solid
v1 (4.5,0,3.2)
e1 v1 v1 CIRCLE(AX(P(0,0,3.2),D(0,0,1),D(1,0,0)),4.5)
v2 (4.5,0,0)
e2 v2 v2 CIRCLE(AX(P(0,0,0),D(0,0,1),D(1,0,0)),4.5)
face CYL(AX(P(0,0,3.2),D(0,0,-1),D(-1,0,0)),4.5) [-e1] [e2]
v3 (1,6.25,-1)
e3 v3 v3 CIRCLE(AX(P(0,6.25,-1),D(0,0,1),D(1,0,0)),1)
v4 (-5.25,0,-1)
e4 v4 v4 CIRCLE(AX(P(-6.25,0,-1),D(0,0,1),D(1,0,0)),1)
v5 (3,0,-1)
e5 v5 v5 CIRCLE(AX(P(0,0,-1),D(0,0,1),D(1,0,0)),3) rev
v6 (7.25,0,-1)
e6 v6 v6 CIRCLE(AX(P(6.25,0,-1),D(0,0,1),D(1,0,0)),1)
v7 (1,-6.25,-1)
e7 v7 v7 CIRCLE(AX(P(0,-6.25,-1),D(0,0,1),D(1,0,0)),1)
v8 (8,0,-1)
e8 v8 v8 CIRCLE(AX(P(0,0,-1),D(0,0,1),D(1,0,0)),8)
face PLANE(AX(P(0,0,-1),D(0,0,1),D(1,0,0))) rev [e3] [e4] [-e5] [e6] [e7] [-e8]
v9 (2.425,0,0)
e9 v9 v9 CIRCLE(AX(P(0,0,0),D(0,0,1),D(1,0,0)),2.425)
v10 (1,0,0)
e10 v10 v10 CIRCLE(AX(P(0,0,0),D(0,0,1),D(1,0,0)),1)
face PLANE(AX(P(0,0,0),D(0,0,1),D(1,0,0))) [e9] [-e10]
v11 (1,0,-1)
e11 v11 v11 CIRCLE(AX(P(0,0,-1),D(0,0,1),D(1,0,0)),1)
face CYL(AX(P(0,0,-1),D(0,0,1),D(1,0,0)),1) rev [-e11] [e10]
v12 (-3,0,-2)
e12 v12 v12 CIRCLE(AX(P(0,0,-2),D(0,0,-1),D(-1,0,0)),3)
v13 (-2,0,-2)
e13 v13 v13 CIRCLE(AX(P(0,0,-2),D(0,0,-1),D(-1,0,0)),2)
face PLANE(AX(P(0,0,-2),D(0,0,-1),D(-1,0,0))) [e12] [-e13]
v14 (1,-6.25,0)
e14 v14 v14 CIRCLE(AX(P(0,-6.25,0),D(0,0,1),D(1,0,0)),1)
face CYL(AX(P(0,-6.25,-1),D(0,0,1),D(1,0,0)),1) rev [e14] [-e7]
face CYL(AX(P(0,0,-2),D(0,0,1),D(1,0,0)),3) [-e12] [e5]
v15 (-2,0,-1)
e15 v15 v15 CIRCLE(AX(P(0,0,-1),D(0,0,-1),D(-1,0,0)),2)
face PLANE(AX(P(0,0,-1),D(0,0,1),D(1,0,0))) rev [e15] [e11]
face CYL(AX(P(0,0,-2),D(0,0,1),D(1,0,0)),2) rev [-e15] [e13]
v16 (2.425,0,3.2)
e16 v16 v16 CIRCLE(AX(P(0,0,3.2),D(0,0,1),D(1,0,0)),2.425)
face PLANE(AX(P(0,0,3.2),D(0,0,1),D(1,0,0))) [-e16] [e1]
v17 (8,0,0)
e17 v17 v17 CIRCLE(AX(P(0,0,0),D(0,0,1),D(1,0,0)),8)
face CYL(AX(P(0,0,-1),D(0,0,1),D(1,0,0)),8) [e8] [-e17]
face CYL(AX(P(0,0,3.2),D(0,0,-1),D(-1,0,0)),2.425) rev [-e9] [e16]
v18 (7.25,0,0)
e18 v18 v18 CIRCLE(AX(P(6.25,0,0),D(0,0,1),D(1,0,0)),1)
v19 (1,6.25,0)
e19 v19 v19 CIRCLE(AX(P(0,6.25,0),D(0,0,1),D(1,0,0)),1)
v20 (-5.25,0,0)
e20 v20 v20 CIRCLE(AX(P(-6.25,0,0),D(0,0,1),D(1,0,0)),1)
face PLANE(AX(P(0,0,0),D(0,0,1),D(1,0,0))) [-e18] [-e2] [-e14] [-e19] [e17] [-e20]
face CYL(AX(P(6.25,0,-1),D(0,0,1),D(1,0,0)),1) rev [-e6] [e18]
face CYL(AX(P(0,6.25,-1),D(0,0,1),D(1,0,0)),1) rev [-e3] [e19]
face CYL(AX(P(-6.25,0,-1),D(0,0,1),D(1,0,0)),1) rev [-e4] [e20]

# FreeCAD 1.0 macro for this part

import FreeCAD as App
import Part
import Sketcher
from FreeCAD import Vector
Q = App.Units.Quantity

doc = App.newDocument("Part")
params = doc.addObject("Spreadsheet::Sheet", "Params")
for row, (alias, value) in enumerate([
    ("sketch1_diameter", "9 mm"),
    ("sketch1_diameter2", "4.85 mm"),
    ("pad1_length", "3.2 mm"),
    ("sketch2_diameter", "16 mm"),
    ("sketch2_diameter2", "2 mm"),
    ("pad2_length", "1 mm"),
    ("sketch3_diameter", "6 mm"),
    ("sketch3_diameter2", "4 mm"),
    ("pad3_length", "1 mm"),
], start=1):
    params.set(f"A{row}", alias)
    params.set(f"B{row}", "=" + value)
    params.setAlias(f"B{row}", alias)

body = doc.addObject("PartDesign::Body", "Body")

# Sketch on XY plane
sketch1 = doc.addObject("Sketcher::SketchObject", "Sketch")
body.addObject(sketch1)
sketch1.AttachmentSupport = (doc.XY_Plane, [""])
sketch1.MapMode = "FlatFace"
sketch1.addGeometry(Part.Circle(Vector(0, 0, 0), Vector(0, 0, 1), 4.5), False)
sketch1.addGeometry(Part.Circle(Vector(0, 0, 0), Vector(0, 0, 1), 2.425), False)
sketch1.addConstraint(Sketcher.Constraint("Coincident", 0, 3, -1, 1))
sketch1.addConstraint(Sketcher.Constraint("Coincident", 1, 3, -1, 1))
sketch1.addConstraint(Sketcher.Constraint("Diameter", 0, Q("9 mm")))
sketch1.addConstraint(Sketcher.Constraint("Diameter", 1, Q("4.85 mm")))
sketch1.setExpression("Constraints[2]", "Params.sketch1_diameter")
sketch1.setExpression("Constraints[3]", "Params.sketch1_diameter2")
pad1 = doc.addObject("PartDesign::Pad", "Pad")
body.addObject(pad1)
pad1.Profile = sketch1
pad1.setExpression("Length", "Params.pad1_length")

# Sketch on XY plane
sketch2 = doc.addObject("Sketcher::SketchObject", "Sketch001")
body.addObject(sketch2)
sketch2.AttachmentSupport = (doc.XY_Plane, [""])
sketch2.MapMode = "FlatFace"
sketch2.addGeometry(Part.Circle(Vector(0, 0, 0), Vector(0, 0, 1), 8), False)
sketch2.addGeometry(Part.Circle(Vector(0, -6.25, 0), Vector(0, 0, 1), 1), False)
sketch2.addGeometry(Part.Circle(Vector(-6.25, 0, 0), Vector(0, 0, 1), 1), False)
sketch2.addGeometry(Part.Circle(Vector(0, 0, 0), Vector(0, 0, 1), 1), False)
sketch2.addGeometry(Part.Circle(Vector(6.25, 0, 0), Vector(0, 0, 1), 1), False)
sketch2.addGeometry(Part.Circle(Vector(0, 6.25, 0), Vector(0, 0, 1), 1), False)
sketch2.addConstraint(Sketcher.Constraint("Coincident", 0, 3, -1, 1))
sketch2.addConstraint(Sketcher.Constraint("Coincident", 3, 3, -1, 1))
sketch2.addConstraint(Sketcher.Constraint("Equal", 1, 2))
sketch2.addConstraint(Sketcher.Constraint("Equal", 2, 3))
sketch2.addConstraint(Sketcher.Constraint("Equal", 3, 4))
sketch2.addConstraint(Sketcher.Constraint("Equal", 4, 5))
sketch2.addConstraint(Sketcher.Constraint("Symmetric", 2, 3, 4, 3, -1, 1))
sketch2.addConstraint(Sketcher.Constraint("Symmetric", 1, 3, 5, 3, -1, 1))
sketch2.addConstraint(Sketcher.Constraint("PointOnObject", 1, 3, -2))
sketch2.addConstraint(Sketcher.Constraint("PointOnObject", 2, 3, -1))
sketch2.addConstraint(Sketcher.Constraint("Diameter", 0, Q("16 mm")))
sketch2.addConstraint(Sketcher.Constraint("Diameter", 1, Q("2 mm")))
sketch2.addConstraint(Sketcher.Constraint("DistanceX", 2, 3, 4, 3, Q("12.5 mm")))
sketch2.addConstraint(Sketcher.Constraint("DistanceY", 1, 3, 5, 3, Q("12.5 mm")))
sketch2.setExpression("Constraints[10]", "Params.sketch2_diameter")
sketch2.setExpression("Constraints[11]", "Params.sketch2_diameter2")
pad2 = doc.addObject("PartDesign::Pad", "Pad001")
body.addObject(pad2)
pad2.Profile = sketch2
pad2.setExpression("Length", "Params.pad2_length")
pad2.Reversed = True

# Sketch on XY plane
sketch3 = doc.addObject("Sketcher::SketchObject", "Sketch002")
body.addObject(sketch3)
sketch3.AttachmentSupport = (doc.XY_Plane, [""])
sketch3.MapMode = "FlatFace"
sketch3.AttachmentOffset = App.Placement(Vector(0, 0, -1), App.Rotation())
sketch3.addGeometry(Part.Circle(Vector(0, 0, 0), Vector(0, 0, 1), 3), False)
sketch3.addGeometry(Part.Circle(Vector(0, 0, 0), Vector(0, 0, 1), 2), False)
sketch3.addConstraint(Sketcher.Constraint("Coincident", 0, 3, -1, 1))
sketch3.addConstraint(Sketcher.Constraint("Coincident", 1, 3, -1, 1))
sketch3.addConstraint(Sketcher.Constraint("Diameter", 0, Q("6 mm")))
sketch3.addConstraint(Sketcher.Constraint("Diameter", 1, Q("4 mm")))
sketch3.setExpression("Constraints[2]", "Params.sketch3_diameter")
sketch3.setExpression("Constraints[3]", "Params.sketch3_diameter2")
pad3 = doc.addObject("PartDesign::Pad", "Pad002")
body.addObject(pad3)
pad3.Profile = sketch3
pad3.setExpression("Length", "Params.pad3_length")
pad3.Reversed = True

doc.recompute()
